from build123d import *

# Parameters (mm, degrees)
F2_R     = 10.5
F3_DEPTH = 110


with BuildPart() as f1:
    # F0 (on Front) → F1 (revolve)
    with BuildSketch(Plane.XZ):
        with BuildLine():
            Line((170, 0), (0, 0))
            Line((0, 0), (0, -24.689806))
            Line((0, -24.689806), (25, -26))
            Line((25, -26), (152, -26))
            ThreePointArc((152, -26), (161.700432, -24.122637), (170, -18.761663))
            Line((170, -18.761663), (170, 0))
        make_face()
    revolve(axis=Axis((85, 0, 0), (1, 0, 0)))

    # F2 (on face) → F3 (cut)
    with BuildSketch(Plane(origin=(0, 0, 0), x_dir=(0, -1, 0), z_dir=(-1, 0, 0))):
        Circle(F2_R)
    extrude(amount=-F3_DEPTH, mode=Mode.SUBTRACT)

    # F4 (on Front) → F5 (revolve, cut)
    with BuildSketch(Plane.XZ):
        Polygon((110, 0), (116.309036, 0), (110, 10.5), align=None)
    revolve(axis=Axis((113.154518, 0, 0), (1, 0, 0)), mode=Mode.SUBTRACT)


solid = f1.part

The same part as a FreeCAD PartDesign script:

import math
import FreeCAD as App
import Part
import Sketcher
from FreeCAD import Vector
Q = App.Units.Quantity


def add_polygon(sketch, points):
    """Adds a closed chain of lines whose ends are joined by coincident constraints."""
    first, n = sketch.GeometryCount, len(points)
    for a, b in zip(points, points[1:] + points[:1]):
        sketch.addGeometry(Part.LineSegment(App.Vector(*a, 0), App.Vector(*b, 0)), False)
    for i in range(n):
        sketch.addConstraint(Sketcher.Constraint("Coincident", first + i, 2, first + (i + 1) % n, 1))

doc = App.newDocument("Part")
body = doc.addObject("PartDesign::Body", "Body")

# Sketch on XZ plane
sketch1 = body.newObject("Sketcher::SketchObject", "Sketch")
sketch1.AttachmentSupport = (doc.getObject("XZ_Plane"), [""])
sketch1.MapMode = "FlatFace"
sketch1.addGeometry([
    Part.LineSegment(Vector(170, 0, 0), Vector(0, 0, 0)),  # 0
    Part.LineSegment(Vector(0, 0, 0), Vector(0, -24.689806, 0)),  # 1
    Part.LineSegment(Vector(0, -24.689806, 0), Vector(25, -26, 0)),  # 2
    Part.LineSegment(Vector(25, -26, 0), Vector(152, -26, 0)),  # 3
    Part.ArcOfCircle(Part.Circle(Vector(152, 0.000001, 0), Vector(0, 0, 1), 26.000001), math.radians(-89.999999), math.radians(-46.186939)),  # 4
    Part.LineSegment(Vector(170, -18.761663, 0), Vector(170, 0, 0)),  # 5
], False)
sketch1.addConstraint([
    Sketcher.Constraint("Coincident", 0, 2, 1, 1),
    Sketcher.Constraint("Coincident", 1, 2, 2, 1),
    Sketcher.Constraint("Coincident", 2, 2, 3, 1),
    Sketcher.Constraint("Tangent", 3, 2, 4, 1),
    Sketcher.Constraint("Coincident", 4, 2, 5, 1),
    Sketcher.Constraint("Coincident", 5, 2, 0, 1),
    Sketcher.Constraint("Horizontal", 0),
    Sketcher.Constraint("Vertical", 1),
    Sketcher.Constraint("Horizontal", 3),
    Sketcher.Constraint("Vertical", 5),
    Sketcher.Constraint("Coincident", 0, 2, -1, 1),
    Sketcher.Constraint("PointOnObject", 4, 3, -1),
    Sketcher.Constraint("Radius", 4, Q("26.000001 mm")),
    Sketcher.Constraint("DistanceX", 0, 2, 0, 1, Q("170 mm")),
    Sketcher.Constraint("DistanceX", 3, 1, 3, 2, Q("127 mm")),
    Sketcher.Constraint("Angle", 2, Q("-2.999999 deg")),
    Sketcher.Constraint("DistanceX", -1, 1, 4, 3, Q("152 mm")),
])
revolution = body.newObject("PartDesign::Revolution", "Revolution")
revolution.Profile = sketch1
revolution.ReferenceAxis = (sketch1, ["H_Axis"])
revolution.Angle = 360

# Sketch on YZ plane
sketch2 = body.newObject("Sketcher::SketchObject", "Sketch001")
sketch2.AttachmentSupport = (doc.getObject("YZ_Plane"), [""])
sketch2.MapMode = "FlatFace"
sketch2.addGeometry(Part.Circle(Vector(0, 0, 0), Vector(0, 0, 1), 10.5), False)
sketch2.addConstraint([
    Sketcher.Constraint("Coincident", 0, 3, -1, 1),
    Sketcher.Constraint("Diameter", 0, Q("21 mm")),
])
pocket1 = body.newObject("PartDesign::Pocket", "Pocket")
pocket1.Profile = sketch2
pocket1.Length = 110
pocket1.Reversed = True

# Sketch on XZ plane
sketch3 = body.newObject("Sketcher::SketchObject", "Sketch002")
sketch3.AttachmentSupport = (doc.getObject("XZ_Plane"), [""])
sketch3.MapMode = "FlatFace"
add_polygon(sketch3, [(110, 0), (116.309036, 0), (110, 10.5)])  # lines 0-2
sketch3.addConstraint([
    Sketcher.Constraint("Horizontal", 0),
    Sketcher.Constraint("Vertical", 2),
    Sketcher.Constraint("PointOnObject", 0, 2, -1),
    Sketcher.Constraint("Angle", 1, Q("120.999998 deg")),
    Sketcher.Constraint("DistanceY", 2, 2, 2, 1, Q("10.5 mm")),
    Sketcher.Constraint("DistanceX", -1, 1, 1, 2, Q("110 mm")),
])
groove = body.newObject("PartDesign::Groove", "Groove")
groove.Profile = sketch3
groove.ReferenceAxis = (sketch3, ["H_Axis"])
groove.Angle = 360

doc.recompute()
